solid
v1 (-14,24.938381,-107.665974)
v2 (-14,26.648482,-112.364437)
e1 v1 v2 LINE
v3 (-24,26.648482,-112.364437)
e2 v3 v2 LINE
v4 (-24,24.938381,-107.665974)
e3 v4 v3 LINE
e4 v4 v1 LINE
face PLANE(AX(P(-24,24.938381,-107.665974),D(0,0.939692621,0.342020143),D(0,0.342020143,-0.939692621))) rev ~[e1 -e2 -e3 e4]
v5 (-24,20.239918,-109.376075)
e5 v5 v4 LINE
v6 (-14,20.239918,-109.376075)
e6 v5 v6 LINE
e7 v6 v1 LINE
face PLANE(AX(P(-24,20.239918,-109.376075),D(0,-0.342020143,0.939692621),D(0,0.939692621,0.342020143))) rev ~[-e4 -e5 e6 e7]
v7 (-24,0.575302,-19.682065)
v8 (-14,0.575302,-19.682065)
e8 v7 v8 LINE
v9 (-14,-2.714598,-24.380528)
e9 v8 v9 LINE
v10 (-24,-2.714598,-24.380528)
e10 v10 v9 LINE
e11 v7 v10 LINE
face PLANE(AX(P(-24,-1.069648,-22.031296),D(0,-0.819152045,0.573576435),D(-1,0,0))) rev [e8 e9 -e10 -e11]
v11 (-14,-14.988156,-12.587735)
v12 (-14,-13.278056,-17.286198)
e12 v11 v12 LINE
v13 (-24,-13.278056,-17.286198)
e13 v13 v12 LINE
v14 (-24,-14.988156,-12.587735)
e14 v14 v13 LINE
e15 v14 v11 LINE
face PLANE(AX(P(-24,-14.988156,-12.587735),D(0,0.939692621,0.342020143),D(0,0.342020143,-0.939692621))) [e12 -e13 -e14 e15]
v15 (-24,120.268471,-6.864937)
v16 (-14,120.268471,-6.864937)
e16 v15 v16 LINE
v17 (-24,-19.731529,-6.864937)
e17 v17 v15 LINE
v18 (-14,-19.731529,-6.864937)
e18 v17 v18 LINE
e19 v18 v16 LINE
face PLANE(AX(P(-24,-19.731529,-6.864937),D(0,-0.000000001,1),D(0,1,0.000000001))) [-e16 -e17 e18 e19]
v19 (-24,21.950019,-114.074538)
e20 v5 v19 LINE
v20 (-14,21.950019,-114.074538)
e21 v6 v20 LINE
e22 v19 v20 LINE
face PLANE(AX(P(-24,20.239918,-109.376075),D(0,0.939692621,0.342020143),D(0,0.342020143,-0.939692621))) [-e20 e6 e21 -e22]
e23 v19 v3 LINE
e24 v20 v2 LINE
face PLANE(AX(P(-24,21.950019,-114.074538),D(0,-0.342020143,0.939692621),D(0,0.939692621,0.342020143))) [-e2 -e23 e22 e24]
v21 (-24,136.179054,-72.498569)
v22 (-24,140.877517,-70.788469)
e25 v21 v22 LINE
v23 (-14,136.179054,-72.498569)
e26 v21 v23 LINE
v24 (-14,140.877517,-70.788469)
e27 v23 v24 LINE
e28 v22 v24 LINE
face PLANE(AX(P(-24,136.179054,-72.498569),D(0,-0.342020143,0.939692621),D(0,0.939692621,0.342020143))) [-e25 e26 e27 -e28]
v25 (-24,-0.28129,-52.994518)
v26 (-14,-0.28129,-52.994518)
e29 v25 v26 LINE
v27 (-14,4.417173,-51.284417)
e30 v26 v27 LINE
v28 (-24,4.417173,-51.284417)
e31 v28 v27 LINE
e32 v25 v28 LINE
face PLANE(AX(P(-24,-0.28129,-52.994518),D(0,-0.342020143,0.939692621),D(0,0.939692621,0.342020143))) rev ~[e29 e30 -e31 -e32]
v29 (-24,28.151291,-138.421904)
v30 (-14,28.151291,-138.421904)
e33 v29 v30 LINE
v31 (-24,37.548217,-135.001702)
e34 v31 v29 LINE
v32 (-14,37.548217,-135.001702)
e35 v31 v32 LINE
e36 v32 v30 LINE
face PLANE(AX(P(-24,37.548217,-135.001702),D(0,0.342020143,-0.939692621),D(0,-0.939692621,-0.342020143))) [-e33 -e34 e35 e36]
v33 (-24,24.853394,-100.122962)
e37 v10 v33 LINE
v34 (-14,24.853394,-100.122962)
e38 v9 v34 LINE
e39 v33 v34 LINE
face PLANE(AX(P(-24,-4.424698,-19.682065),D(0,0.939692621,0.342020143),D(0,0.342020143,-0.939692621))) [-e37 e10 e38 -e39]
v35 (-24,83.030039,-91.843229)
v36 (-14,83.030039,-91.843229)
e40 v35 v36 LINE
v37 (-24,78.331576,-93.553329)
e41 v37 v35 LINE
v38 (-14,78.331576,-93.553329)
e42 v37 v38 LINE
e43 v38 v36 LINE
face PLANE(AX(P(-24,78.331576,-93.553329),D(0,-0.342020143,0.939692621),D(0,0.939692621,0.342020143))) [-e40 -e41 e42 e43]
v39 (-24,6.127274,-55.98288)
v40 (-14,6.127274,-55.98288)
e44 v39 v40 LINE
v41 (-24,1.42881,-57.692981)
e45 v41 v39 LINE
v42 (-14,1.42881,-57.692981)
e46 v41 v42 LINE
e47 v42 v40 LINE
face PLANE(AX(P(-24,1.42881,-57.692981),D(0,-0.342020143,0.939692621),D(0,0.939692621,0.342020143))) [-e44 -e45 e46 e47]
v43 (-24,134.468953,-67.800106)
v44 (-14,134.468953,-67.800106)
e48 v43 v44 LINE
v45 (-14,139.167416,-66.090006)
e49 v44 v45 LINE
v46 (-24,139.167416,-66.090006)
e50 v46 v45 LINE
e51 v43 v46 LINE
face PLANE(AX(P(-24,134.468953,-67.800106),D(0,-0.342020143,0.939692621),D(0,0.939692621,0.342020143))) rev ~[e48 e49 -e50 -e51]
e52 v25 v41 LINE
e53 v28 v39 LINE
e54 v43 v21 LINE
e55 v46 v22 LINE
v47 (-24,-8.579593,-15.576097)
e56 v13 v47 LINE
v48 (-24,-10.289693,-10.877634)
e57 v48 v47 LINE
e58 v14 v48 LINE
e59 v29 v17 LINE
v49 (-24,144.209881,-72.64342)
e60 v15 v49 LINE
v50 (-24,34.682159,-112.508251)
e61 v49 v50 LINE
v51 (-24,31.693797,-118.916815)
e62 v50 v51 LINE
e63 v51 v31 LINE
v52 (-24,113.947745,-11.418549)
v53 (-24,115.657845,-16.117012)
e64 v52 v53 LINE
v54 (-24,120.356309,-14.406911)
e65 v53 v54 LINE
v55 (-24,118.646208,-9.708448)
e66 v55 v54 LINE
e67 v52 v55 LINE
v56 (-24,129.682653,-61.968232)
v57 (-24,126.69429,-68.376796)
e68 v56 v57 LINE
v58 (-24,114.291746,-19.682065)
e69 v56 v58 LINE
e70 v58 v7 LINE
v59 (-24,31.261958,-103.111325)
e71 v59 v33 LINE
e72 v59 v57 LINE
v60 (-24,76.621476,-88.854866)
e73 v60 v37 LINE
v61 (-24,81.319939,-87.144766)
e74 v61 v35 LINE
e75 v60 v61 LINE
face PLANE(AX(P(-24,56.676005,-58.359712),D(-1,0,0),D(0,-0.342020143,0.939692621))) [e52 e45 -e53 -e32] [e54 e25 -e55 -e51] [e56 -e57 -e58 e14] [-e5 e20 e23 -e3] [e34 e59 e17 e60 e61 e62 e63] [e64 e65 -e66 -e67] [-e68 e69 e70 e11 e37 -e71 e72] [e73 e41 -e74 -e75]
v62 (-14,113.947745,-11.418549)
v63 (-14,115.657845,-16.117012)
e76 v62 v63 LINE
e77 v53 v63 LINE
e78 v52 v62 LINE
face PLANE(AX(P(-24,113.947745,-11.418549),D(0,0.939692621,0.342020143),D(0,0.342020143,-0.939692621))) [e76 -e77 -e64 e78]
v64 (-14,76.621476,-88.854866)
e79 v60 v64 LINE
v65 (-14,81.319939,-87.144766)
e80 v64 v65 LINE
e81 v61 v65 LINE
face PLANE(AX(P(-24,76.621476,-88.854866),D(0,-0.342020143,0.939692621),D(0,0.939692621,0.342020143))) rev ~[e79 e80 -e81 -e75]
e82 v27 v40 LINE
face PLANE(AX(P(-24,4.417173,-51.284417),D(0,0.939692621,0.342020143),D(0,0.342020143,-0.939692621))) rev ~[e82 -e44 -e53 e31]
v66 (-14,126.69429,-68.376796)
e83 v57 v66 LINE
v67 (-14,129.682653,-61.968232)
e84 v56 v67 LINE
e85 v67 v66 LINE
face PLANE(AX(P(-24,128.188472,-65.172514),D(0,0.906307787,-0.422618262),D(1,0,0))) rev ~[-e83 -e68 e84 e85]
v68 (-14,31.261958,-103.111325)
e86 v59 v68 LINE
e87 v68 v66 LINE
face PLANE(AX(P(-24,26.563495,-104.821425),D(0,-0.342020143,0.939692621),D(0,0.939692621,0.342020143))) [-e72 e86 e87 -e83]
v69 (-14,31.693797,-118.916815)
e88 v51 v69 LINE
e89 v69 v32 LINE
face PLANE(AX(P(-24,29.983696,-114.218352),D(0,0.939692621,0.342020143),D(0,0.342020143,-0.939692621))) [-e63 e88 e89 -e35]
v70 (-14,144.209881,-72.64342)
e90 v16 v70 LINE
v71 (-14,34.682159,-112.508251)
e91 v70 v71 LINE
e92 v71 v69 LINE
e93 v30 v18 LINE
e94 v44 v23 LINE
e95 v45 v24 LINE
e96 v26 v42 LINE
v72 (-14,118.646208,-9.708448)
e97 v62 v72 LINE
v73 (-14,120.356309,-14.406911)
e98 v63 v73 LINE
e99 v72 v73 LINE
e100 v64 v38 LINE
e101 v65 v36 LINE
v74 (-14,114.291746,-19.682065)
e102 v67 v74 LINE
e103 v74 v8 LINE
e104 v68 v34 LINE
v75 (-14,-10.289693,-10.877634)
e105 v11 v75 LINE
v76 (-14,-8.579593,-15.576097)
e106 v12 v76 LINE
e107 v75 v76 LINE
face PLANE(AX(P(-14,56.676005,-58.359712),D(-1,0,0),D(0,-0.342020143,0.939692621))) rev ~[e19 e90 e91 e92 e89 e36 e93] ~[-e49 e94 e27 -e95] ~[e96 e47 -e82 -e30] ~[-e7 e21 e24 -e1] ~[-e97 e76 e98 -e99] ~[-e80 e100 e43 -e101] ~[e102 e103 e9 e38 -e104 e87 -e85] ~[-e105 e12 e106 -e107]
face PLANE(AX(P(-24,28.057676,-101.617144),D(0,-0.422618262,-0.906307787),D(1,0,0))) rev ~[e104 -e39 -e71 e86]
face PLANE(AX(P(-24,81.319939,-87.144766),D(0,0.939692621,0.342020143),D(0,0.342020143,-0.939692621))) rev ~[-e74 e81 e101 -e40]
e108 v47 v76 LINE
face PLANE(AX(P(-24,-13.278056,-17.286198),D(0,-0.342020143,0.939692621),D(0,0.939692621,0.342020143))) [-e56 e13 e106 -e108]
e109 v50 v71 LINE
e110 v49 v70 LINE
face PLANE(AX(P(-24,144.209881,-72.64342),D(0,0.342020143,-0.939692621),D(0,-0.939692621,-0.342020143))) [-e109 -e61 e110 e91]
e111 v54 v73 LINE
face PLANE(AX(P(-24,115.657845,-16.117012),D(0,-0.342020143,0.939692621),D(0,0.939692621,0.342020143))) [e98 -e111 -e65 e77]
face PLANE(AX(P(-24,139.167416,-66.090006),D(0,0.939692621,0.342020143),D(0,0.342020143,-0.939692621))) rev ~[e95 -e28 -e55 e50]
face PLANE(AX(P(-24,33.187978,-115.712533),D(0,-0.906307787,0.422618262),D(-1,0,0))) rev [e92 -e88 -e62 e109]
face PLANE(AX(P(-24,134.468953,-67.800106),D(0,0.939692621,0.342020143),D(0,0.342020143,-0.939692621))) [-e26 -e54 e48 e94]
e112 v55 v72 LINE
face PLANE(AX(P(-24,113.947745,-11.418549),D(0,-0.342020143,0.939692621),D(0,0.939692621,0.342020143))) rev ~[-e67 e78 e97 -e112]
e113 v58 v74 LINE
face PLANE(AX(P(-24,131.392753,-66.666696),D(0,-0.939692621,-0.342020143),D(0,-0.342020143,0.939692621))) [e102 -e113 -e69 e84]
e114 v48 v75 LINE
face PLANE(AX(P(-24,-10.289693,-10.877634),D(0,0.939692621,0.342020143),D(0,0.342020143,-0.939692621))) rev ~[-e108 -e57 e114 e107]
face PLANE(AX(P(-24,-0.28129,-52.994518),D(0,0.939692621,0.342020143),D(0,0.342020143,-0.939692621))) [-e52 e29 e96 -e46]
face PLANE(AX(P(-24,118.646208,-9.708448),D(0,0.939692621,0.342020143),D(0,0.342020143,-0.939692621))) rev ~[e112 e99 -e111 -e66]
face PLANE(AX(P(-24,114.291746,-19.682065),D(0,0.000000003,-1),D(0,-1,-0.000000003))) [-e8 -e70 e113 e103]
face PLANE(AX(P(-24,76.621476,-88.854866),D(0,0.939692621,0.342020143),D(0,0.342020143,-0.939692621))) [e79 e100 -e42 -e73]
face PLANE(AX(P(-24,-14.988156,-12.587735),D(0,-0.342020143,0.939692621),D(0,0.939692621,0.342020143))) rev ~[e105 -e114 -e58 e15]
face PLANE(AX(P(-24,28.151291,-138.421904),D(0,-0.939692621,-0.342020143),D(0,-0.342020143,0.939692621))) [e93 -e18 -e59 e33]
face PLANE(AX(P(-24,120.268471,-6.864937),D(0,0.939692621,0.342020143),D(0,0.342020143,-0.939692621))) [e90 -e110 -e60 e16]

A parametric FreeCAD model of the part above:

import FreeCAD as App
import Part
import Sketcher

V = App.Vector
Q = App.Units.Quantity


def edges_at(feature, points):
    """Names of the edges that pass closest to the given points."""
    edges = feature.Shape.Edges
    near = lambda p: min(range(len(edges)), key=lambda i: edges[i].distToShape(Part.Vertex(*p))[0])
    return sorted({f"Edge{near(p) + 1}" for p in points})

doc = App.newDocument("Part")
body = doc.addObject("PartDesign::Body", "Body")

# Sketch on YZ plane
sketch1 = body.newObject("Sketcher::SketchObject", "Sketch")
sketch1.AttachmentSupport = (doc.getObject("YZ_Plane"), [""])
sketch1.MapMode = "FlatFace"
sketch1.addGeometry([
    Part.LineSegment(V(48, 132, 0), V(0, 0, 0)),  # 0
    Part.LineSegment(V(0, 0, 0), V(140, 0, 0)),  # 1
    Part.LineSegment(V(140, 0, 0), V(140, 10, 0)),  # 2
    Part.LineSegment(V(140, 10, 0), V(118, 10, 0)),  # 3
    Part.LineSegment(V(118, 10, 0), V(118, 132, 0)),  # 4
    Part.LineSegment(V(118, 132, 0), V(48, 132, 0)),  # 5
    Part.LineSegment(V(58, 122, 0), V(108, 122, 0)),  # 6
    Part.LineSegment(V(108, 122, 0), V(108, 10, 0)),  # 7
    Part.LineSegment(V(108, 10, 0), V(17, 10, 0)),  # 8
    Part.LineSegment(V(17, 10, 0), V(58, 122, 0)),  # 9
], False)
sketch1.addConstraint([
    Sketcher.Constraint("Coincident", 0, 2, 1, 1),
    Sketcher.Constraint("Coincident", 1, 2, 2, 1),
    Sketcher.Constraint("Coincident", 2, 2, 3, 1),
    Sketcher.Constraint("Coincident", 3, 2, 4, 1),
    Sketcher.Constraint("Coincident", 4, 2, 5, 1),
    Sketcher.Constraint("Coincident", 5, 2, 0, 1),
    Sketcher.Constraint("Coincident", 6, 2, 7, 1),
    Sketcher.Constraint("Coincident", 7, 2, 8, 1),
    Sketcher.Constraint("Coincident", 8, 2, 9, 1),
    Sketcher.Constraint("Coincident", 9, 2, 6, 1),
    Sketcher.Constraint("Horizontal", 1),
    Sketcher.Constraint("Vertical", 2),
    Sketcher.Constraint("Horizontal", 3),
    Sketcher.Constraint("Vertical", 4),
    Sketcher.Constraint("Horizontal", 5),
    Sketcher.Constraint("Horizontal", 6),
    Sketcher.Constraint("Vertical", 7),
    Sketcher.Constraint("Horizontal", 8),
    Sketcher.Constraint("Coincident", 0, 2, -1, 1),
    Sketcher.Constraint("Parallel", 0, 9),
    Sketcher.Constraint("Horizontal", 3, 2, 7, 2),
    Sketcher.Constraint("DistanceX", 1, 1, 1, 2, Q("140 mm")),
    Sketcher.Constraint("DistanceX", 5, 2, 5, 1, Q("70 mm")),
    Sketcher.Constraint("DistanceX", 6, 1, 6, 2, Q("50 mm")),
    Sketcher.Constraint("DistanceY", 2, 1, 2, 2, Q("10 mm")),
    Sketcher.Constraint("Angle", 0, Q("-110 deg")),
    Sketcher.Constraint("Distance", 0, Q("140 mm")),
    Sketcher.Constraint("DistanceX", 6, 2, 4, 2, Q("10 mm")),
    Sketcher.Constraint("DistanceY", 6, 2, 4, 2, Q("10 mm")),
])
pad1 = body.newObject("PartDesign::Pad", "Pad")
pad1.Profile = sketch1
pad1.Length = 10

# Sketch on YZ plane
sketch2 = body.newObject("Sketcher::SketchObject", "Sketch001")
sketch2.AttachmentSupport = (doc.getObject("YZ_Plane"), [""])
sketch2.MapMode = "FlatFace"
sketch2.addGeometry([
    Part.LineSegment(V(110, 8, 0), V(110, 2, 0)),  # 0
    Part.LineSegment(V(110, 2, 0), V(115, 2, 0)),  # 1
    Part.LineSegment(V(115, 2, 0), V(115, 8, 0)),  # 2
    Part.LineSegment(V(115, 8, 0), V(110, 8, 0)),  # 3
    Part.LineSegment(V(7, 8, 0), V(7, 2, 0)),  # 4
    Part.LineSegment(V(7, 2, 0), V(12, 2, 0)),  # 5
    Part.LineSegment(V(12, 2, 0), V(12, 8, 0)),  # 6
    Part.LineSegment(V(12, 8, 0), V(7, 8, 0)),  # 7
    Part.LineSegment(V(50, 129, 0), V(50, 124, 0)),  # 8
    Part.LineSegment(V(50, 124, 0), V(55, 124, 0)),  # 9
    Part.LineSegment(V(55, 124, 0), V(55, 129, 0)),  # 10
    Part.LineSegment(V(55, 129, 0), V(50, 129, 0)),  # 11
    Part.LineSegment(V(110, 129, 0), V(110, 124, 0)),  # 12
    Part.LineSegment(V(110, 124, 0), V(115, 124, 0)),  # 13
    Part.LineSegment(V(115, 124, 0), V(115, 129, 0)),  # 14
    Part.LineSegment(V(115, 129, 0), V(110, 129, 0)),  # 15
    Part.LineSegment(V(50, 8, 0), V(50, 2, 0)),  # 16
    Part.LineSegment(V(50, 2, 0), V(55, 2, 0)),  # 17
    Part.LineSegment(V(55, 2, 0), V(55, 8, 0)),  # 18
    Part.LineSegment(V(55, 8, 0), V(50, 8, 0)),  # 19
    Part.LineSegment(V(110, 68, 0), V(110, 62, 0)),  # 20
    Part.LineSegment(V(110, 62, 0), V(115, 62, 0)),  # 21
    Part.LineSegment(V(115, 62, 0), V(115, 68, 0)),  # 22
    Part.LineSegment(V(115, 68, 0), V(110, 68, 0)),  # 23
], False)
sketch2.addConstraint([
    Sketcher.Constraint("Coincident", 0, 2, 1, 1),
    Sketcher.Constraint("Coincident", 1, 2, 2, 1),
    Sketcher.Constraint("Coincident", 2, 2, 3, 1),
    Sketcher.Constraint("Coincident", 3, 2, 0, 1),
    Sketcher.Constraint("Coincident", 4, 2, 5, 1),
    Sketcher.Constraint("Coincident", 5, 2, 6, 1),
    Sketcher.Constraint("Coincident", 6, 2, 7, 1),
    Sketcher.Constraint("Coincident", 7, 2, 4, 1),
    Sketcher.Constraint("Coincident", 8, 2, 9, 1),
    Sketcher.Constraint("Coincident", 9, 2, 10, 1),
    Sketcher.Constraint("Coincident", 10, 2, 11, 1),
    Sketcher.Constraint("Coincident", 11, 2, 8, 1),
    Sketcher.Constraint("Coincident", 12, 2, 13, 1),
    Sketcher.Constraint("Coincident", 13, 2, 14, 1),
    Sketcher.Constraint("Coincident", 14, 2, 15, 1),
    Sketcher.Constraint("Coincident", 15, 2, 12, 1),
    Sketcher.Constraint("Coincident", 16, 2, 17, 1),
    Sketcher.Constraint("Coincident", 17, 2, 18, 1),
    Sketcher.Constraint("Coincident", 18, 2, 19, 1),
    Sketcher.Constraint("Coincident", 19, 2, 16, 1),
    Sketcher.Constraint("Coincident", 20, 2, 21, 1),
    Sketcher.Constraint("Coincident", 21, 2, 22, 1),
    Sketcher.Constraint("Coincident", 22, 2, 23, 1),
    Sketcher.Constraint("Coincident", 23, 2, 20, 1),
    Sketcher.Constraint("Vertical", 0),
    Sketcher.Constraint("Horizontal", 1),
    Sketcher.Constraint("Vertical", 2),
    Sketcher.Constraint("Horizontal", 3),
    Sketcher.Constraint("Vertical", 4),
    Sketcher.Constraint("Horizontal", 5),
    Sketcher.Constraint("Vertical", 6),
    Sketcher.Constraint("Horizontal", 7),
    Sketcher.Constraint("Vertical", 8),
    Sketcher.Constraint("Horizontal", 9),
    Sketcher.Constraint("Vertical", 10),
    Sketcher.Constraint("Horizontal", 11),
    Sketcher.Constraint("Vertical", 12),
    Sketcher.Constraint("Horizontal", 13),
    Sketcher.Constraint("Vertical", 14),
    Sketcher.Constraint("Horizontal", 15),
    Sketcher.Constraint("Vertical", 16),
    Sketcher.Constraint("Horizontal", 17),
    Sketcher.Constraint("Vertical", 18),
    Sketcher.Constraint("Horizontal", 19),
    Sketcher.Constraint("Vertical", 20),
    Sketcher.Constraint("Horizontal", 21),
    Sketcher.Constraint("Vertical", 22),
    Sketcher.Constraint("Horizontal", 23),
    Sketcher.Constraint("Horizontal", 1, 2, 4, 2),
    Sketcher.Constraint("Horizontal", 3, 2, 6, 2),
    Sketcher.Constraint("Horizontal", 9, 2, 12, 2),
    Sketcher.Constraint("Horizontal", 11, 2, 14, 2),
    Sketcher.Constraint("Horizontal", 5, 2, 16, 2),
    Sketcher.Constraint("Horizontal", 7, 2, 18, 2),
    Sketcher.Constraint("Vertical", 3, 2, 12, 2),
    Sketcher.Constraint("Vertical", 2, 2, 13, 2),
    Sketcher.Constraint("Vertical", 11, 2, 16, 2),
    Sketcher.Constraint("Vertical", 10, 2, 17, 2),
    Sketcher.Constraint("Vertical", 15, 2, 20, 2),
    Sketcher.Constraint("Vertical", 14, 2, 21, 2),
    Sketcher.Constraint("Equal", 3, 5),
    Sketcher.Constraint("Equal", 7, 9),
    Sketcher.Constraint("Equal", 23, 0),
    Sketcher.Constraint("Equal", 6, 8),
    Sketcher.Constraint("Equal", 18, 20),
    Sketcher.Constraint("DistanceX", 1, 1, 1, 2, Q("5 mm")),
    Sketcher.Constraint("DistanceX", -1, 1, 0, 2, Q("110 mm")),
    Sketcher.Constraint("DistanceX", -1, 1, 4, 2, Q("7 mm")),
    Sketcher.Constraint("DistanceX", -1, 1, 8, 2, Q("50 mm")),
    Sketcher.Constraint("DistanceY", 3, 2, 20, 2, Q("55 mm")),
    Sketcher.Constraint("DistanceY", -1, 1, 0, 2, Q("2.5 mm")),
    Sketcher.Constraint("DistanceY", -1, 1, 8, 2, Q("124.06 mm")),
])
pocket1 = body.newObject("PartDesign::Pocket", "Pocket")
pocket1.Profile = sketch2
pocket1.Length = 10
pocket1.Reversed = True
doc.recompute()

chamfer = body.newObject("PartDesign::Chamfer", "Chamfer")
chamfer.Base = (pocket1, edges_at(pocket1, [
    (5, 117.883, 10),
    (5, 107.883, 10),
    (5, 107.883, 121.557),
    (5, 17.279, 10),
]))
chamfer.Size = 5
body2 = doc.addObject("PartDesign::Body", "Body001")
doc.recompute()

body.Placement = App.Placement(V(-24, -19.731529, -6.864937), App.Rotation(V(-1, 0, 0), 70))
boolean = body2.newObject("PartDesign::Boolean", "Boolean")
boolean.Type = "Fuse"
boolean.addObjects([body])

doc.recompute()
